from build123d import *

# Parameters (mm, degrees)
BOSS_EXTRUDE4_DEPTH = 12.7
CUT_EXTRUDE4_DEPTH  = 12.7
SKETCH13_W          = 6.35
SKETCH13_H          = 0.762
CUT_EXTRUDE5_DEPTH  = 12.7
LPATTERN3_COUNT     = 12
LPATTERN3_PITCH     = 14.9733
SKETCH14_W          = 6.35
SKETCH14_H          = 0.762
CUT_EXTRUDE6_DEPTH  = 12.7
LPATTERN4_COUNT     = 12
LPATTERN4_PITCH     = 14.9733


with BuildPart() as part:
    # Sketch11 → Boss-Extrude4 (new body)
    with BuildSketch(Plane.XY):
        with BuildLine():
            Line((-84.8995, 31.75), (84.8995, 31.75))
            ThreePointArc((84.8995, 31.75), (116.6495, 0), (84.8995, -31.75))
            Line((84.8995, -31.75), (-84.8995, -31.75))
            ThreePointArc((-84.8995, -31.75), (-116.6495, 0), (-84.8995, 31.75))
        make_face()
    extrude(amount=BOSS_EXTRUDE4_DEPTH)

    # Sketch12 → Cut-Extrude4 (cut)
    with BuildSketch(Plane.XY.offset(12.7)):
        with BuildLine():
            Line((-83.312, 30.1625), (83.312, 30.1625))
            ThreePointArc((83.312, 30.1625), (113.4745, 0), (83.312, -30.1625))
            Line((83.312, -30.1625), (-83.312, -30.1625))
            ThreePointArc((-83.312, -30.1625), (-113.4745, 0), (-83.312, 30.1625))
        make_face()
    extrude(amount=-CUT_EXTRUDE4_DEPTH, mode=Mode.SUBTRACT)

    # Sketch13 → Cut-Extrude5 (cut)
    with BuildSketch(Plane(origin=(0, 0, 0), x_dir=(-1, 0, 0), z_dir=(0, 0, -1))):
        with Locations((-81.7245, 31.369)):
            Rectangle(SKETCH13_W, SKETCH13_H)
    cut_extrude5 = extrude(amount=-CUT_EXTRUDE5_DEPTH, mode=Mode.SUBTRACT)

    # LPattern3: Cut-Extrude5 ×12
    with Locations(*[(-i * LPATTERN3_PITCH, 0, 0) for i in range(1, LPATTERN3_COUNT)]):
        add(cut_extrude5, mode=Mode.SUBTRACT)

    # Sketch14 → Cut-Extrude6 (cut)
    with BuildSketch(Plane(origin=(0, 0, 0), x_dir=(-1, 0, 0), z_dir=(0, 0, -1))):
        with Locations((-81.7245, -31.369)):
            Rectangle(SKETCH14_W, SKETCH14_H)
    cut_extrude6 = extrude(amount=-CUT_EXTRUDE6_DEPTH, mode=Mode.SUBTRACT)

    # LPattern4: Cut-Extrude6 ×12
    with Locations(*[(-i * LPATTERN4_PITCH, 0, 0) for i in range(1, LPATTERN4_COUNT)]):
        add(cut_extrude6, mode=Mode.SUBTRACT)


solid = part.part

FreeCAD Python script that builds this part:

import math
import FreeCAD as App
import Part
import Sketcher
Q = App.Units.Quantity

doc = App.newDocument("Part")
body = doc.addObject("PartDesign::Body", "Body")

sketch1 = body.newObject("Sketcher::SketchObject", "Sketch")
sketch1.AttachmentSupport = (doc.getObject("XY_Plane"), [""])
sketch1.MapMode = "FlatFace"
sketch1.addGeometry([
    Part.LineSegment(App.Vector(85, 32, 0), App.Vector(-85, 32, 0)),
    Part.ArcOfCircle(Part.Circle(App.Vector(-85, 0, 0), App.Vector(0, 0, 1), 32), math.radians(90), math.radians(270)),
    Part.LineSegment(App.Vector(-85, -32, 0), App.Vector(85, -32, 0)),
    Part.ArcOfCircle(Part.Circle(App.Vector(85, 0, 0), App.Vector(0, 0, 1), 32), math.radians(-90), math.radians(90)),
], False)
sketch1.addConstraint([
    Sketcher.Constraint("Tangent", 0, 2, 1, 1),
    Sketcher.Constraint("Tangent", 1, 2, 2, 1),
    Sketcher.Constraint("Tangent", 2, 2, 3, 1),
    Sketcher.Constraint("Tangent", 3, 2, 0, 1),
    Sketcher.Constraint("Horizontal", 0),
    Sketcher.Constraint("Horizontal", 2),
    Sketcher.Constraint("Symmetric", 1, 3, 3, 3, -1, 1),
    Sketcher.Constraint("Radius", 1, Q("1.25 in")),
    Sketcher.Constraint("DistanceX", 0, 2, 0, 1, Q("6.685 in")),
])
pad1 = body.newObject("PartDesign::Pad", "Pad")
pad1.Profile = sketch1
pad1.Length = Q("0.5 in")

sketch2 = body.newObject("Sketcher::SketchObject", "Sketch001")
sketch2.AttachmentSupport = (doc.getObject("XY_Plane"), [""])
sketch2.MapMode = "FlatFace"
sketch2.AttachmentOffset = App.Placement(App.Vector(0, 0, 0.5 * 25.4), App.Rotation())
sketch2.addGeometry([
    Part.LineSegment(App.Vector(83, 30, 0), App.Vector(-83, 30, 0)),
    Part.ArcOfCircle(Part.Circle(App.Vector(-83, 0, 0), App.Vector(0, 0, 1), 30), math.radians(90), math.radians(270)),
    Part.LineSegment(App.Vector(-83, -30, 0), App.Vector(83, -30, 0)),
    Part.ArcOfCircle(Part.Circle(App.Vector(83, 0, 0), App.Vector(0, 0, 1), 30), math.radians(-90), math.radians(90)),
], False)
sketch2.addConstraint([
    Sketcher.Constraint("Tangent", 0, 2, 1, 1),
    Sketcher.Constraint("Tangent", 1, 2, 2, 1),
    Sketcher.Constraint("Tangent", 2, 2, 3, 1),
    Sketcher.Constraint("Tangent", 3, 2, 0, 1),
    Sketcher.Constraint("Horizontal", 0),
    Sketcher.Constraint("Horizontal", 2),
    Sketcher.Constraint("Symmetric", 1, 3, 3, 3, -1, 1),
    Sketcher.Constraint("Radius", 1, Q("1.1875 in")),
    Sketcher.Constraint("DistanceX", 0, 2, 0, 1, Q("6.56 in")),
])
pocket1 = body.newObject("PartDesign::Pocket", "Pocket")
pocket1.Profile = sketch2
pocket1.Length = Q("0.5 in")

sketch3 = body.newObject("Sketcher::SketchObject", "Sketch002")
sketch3.AttachmentSupport = (doc.getObject("XY_Plane"), [""])
sketch3.MapMode = "FlatFace"
sketch3.addGeometry([
    Part.LineSegment(App.Vector(84.9, 31.8, 0), App.Vector(84.9, 31, 0)),
    Part.LineSegment(App.Vector(84.9, 31, 0), App.Vector(78.5, 31, 0)),
    Part.LineSegment(App.Vector(78.5, 31, 0), App.Vector(78.5, 31.8, 0)),
    Part.LineSegment(App.Vector(78.5, 31.8, 0), App.Vector(84.9, 31.8, 0)),
], False)
sketch3.addConstraint([
    Sketcher.Constraint("Coincident", 0, 2, 1, 1),
    Sketcher.Constraint("Coincident", 1, 2, 2, 1),
    Sketcher.Constraint("Coincident", 2, 2, 3, 1),
    Sketcher.Constraint("Coincident", 3, 2, 0, 1),
    Sketcher.Constraint("Vertical", 0),
    Sketcher.Constraint("Horizontal", 1),
    Sketcher.Constraint("Vertical", 2),
    Sketcher.Constraint("Horizontal", 3),
    Sketcher.Constraint("DistanceX", 1, 2, 1, 1, Q("0.25 in")),
    Sketcher.Constraint("DistanceY", 0, 2, 0, 1, Q("0.03 in")),
    Sketcher.Constraint("DistanceY", -1, 1, 0, 2, Q("1.22 in")),
    Sketcher.Constraint("DistanceX", -1, 1, 0, 2, Q("3.3425 in")),
])
pocket2 = body.newObject("PartDesign::Pocket", "Pocket001")
pocket2.Profile = sketch3
pocket2.Length = Q("0.5 in")
pocket2.Reversed = True
doc.recompute()

linearpattern = body.newObject("PartDesign::LinearPattern", "LinearPattern")
linearpattern.Originals = [pocket2]
linearpattern.Direction = (doc.getObject("X_Axis"), [""])
linearpattern.Mode = "offset"
linearpattern.Offset = Q("0.5895 in")
linearpattern.Occurrences = 12
linearpattern.Reversed = True
body.Tip = linearpattern

sketch4 = body.newObject("Sketcher::SketchObject", "Sketch003")
sketch4.AttachmentSupport = (doc.getObject("XY_Plane"), [""])
sketch4.MapMode = "FlatFace"
sketch4.addGeometry([
    Part.LineSegment(App.Vector(84.9, -31, 0), App.Vector(84.9, -31.8, 0)),
    Part.LineSegment(App.Vector(84.9, -31.8, 0), App.Vector(78.5, -31.8, 0)),
    Part.LineSegment(App.Vector(78.5, -31.8, 0), App.Vector(78.5, -31, 0)),
    Part.LineSegment(App.Vector(78.5, -31, 0), App.Vector(84.9, -31, 0)),
], False)
sketch4.addConstraint([
    Sketcher.Constraint("Coincident", 0, 2, 1, 1),
    Sketcher.Constraint("Coincident", 1, 2, 2, 1),
    Sketcher.Constraint("Coincident", 2, 2, 3, 1),
    Sketcher.Constraint("Coincident", 3, 2, 0, 1),
    Sketcher.Constraint("Vertical", 0),
    Sketcher.Constraint("Horizontal", 1),
    Sketcher.Constraint("Vertical", 2),
    Sketcher.Constraint("Horizontal", 3),
    Sketcher.Constraint("DistanceX", 1, 2, 1, 1, Q("0.25 in")),
    Sketcher.Constraint("DistanceY", 0, 2, 0, 1, Q("0.03 in")),
    Sketcher.Constraint("DistanceY", 0, 2, -1, 1, Q("1.25 in")),
    Sketcher.Constraint("DistanceX", -1, 1, 0, 2, Q("3.3425 in")),
])
pocket3 = body.newObject("PartDesign::Pocket", "Pocket002")
pocket3.Profile = sketch4
pocket3.Length = Q("0.5 in")
pocket3.Reversed = True
doc.recompute()

linearpattern2 = body.newObject("PartDesign::LinearPattern", "LinearPattern001")
linearpattern2.Originals = [pocket3]
linearpattern2.Direction = (doc.getObject("X_Axis"), [""])
linearpattern2.Mode = "offset"
linearpattern2.Offset = Q("0.5895 in")
linearpattern2.Occurrences = 12
linearpattern2.Reversed = True
body.Tip = linearpattern2

doc.recompute()
